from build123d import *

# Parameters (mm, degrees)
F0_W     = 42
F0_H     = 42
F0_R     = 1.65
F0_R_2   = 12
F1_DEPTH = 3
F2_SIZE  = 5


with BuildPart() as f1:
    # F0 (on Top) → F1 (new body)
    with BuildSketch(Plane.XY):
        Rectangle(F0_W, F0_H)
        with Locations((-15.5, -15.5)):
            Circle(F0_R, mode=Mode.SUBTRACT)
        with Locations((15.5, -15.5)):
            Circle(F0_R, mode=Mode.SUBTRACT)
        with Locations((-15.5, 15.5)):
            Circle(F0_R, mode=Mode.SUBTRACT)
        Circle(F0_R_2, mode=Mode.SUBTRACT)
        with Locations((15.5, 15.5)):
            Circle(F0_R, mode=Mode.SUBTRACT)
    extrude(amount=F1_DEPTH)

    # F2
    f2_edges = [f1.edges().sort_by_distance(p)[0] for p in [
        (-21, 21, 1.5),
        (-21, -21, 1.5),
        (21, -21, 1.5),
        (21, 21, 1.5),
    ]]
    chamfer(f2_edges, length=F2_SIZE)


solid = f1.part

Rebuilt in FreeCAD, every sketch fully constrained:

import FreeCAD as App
import Part
import Sketcher
from FreeCAD import Vector
Q = App.Units.Quantity


def edges_at(feature, points):
    """Names of the edges that pass closest to the given points."""
    edges = feature.Shape.Edges
    near = lambda p: min(range(len(edges)), key=lambda i: edges[i].distToShape(Part.Vertex(*p))[0])
    return sorted({f"Edge{near(p) + 1}" for p in points})

doc = App.newDocument("Part")
body = doc.addObject("PartDesign::Body", "Body")

sketch1 = doc.addObject("Sketcher::SketchObject", "Sketch")
body.addObject(sketch1)
sketch1.AttachmentSupport = (doc.XY_Plane, [""])
sketch1.MapMode = "FlatFace"
sketch1.addGeometry([
    Part.LineSegment(Vector(-21, 21, 0), Vector(-21, -21, 0)),
    Part.LineSegment(Vector(-21, -21, 0), Vector(21, -21, 0)),
    Part.LineSegment(Vector(21, -21, 0), Vector(21, 21, 0)),
    Part.LineSegment(Vector(21, 21, 0), Vector(-21, 21, 0)),
    Part.Circle(Vector(-15.5, -15.5, 0), Vector(0, 0, 1), 1.65),
    Part.Circle(Vector(15.5, -15.5, 0), Vector(0, 0, 1), 1.65),
    Part.Circle(Vector(-15.5, 15.5, 0), Vector(0, 0, 1), 1.65),
    Part.Circle(Vector(0, 0, 0), Vector(0, 0, 1), 12),
    Part.Circle(Vector(15.5, 15.5, 0), Vector(0, 0, 1), 1.65),
], False)
sketch1.addConstraint([
    Sketcher.Constraint("Coincident", 0, 2, 1, 1),
    Sketcher.Constraint("Coincident", 1, 2, 2, 1),
    Sketcher.Constraint("Coincident", 2, 2, 3, 1),
    Sketcher.Constraint("Coincident", 3, 2, 0, 1),
    Sketcher.Constraint("Vertical", 0),
    Sketcher.Constraint("Horizontal", 1),
    Sketcher.Constraint("Vertical", 2),
    Sketcher.Constraint("Horizontal", 3),
    Sketcher.Constraint("Coincident", 7, 3, -1, 1),
    Sketcher.Constraint("Equal", 4, 5),
    Sketcher.Constraint("Equal", 5, 6),
    Sketcher.Constraint("Equal", 6, 8),
    Sketcher.Constraint("Symmetric", 5, 3, 6, 3, -1, 1),
    Sketcher.Constraint("Symmetric", 4, 3, 8, 3, -1, 1),
    Sketcher.Constraint("Symmetric", 0, 2, 2, 2, -1, 1),
    Sketcher.Constraint("Symmetric", 4, 3, 5, 3, -2),
    Sketcher.Constraint("Equal", 3, 0),
    Sketcher.Constraint("Diameter", 7, Q("24 mm")),
    Sketcher.Constraint("Diameter", 4, Q("3.3 mm")),
    Sketcher.Constraint("DistanceX", 1, 1, 1, 2, Q("42 mm")),
    Sketcher.Constraint("DistanceX", 4, 3, 5, 3, Q("31 mm")),
    Sketcher.Constraint("DistanceY", 4, 3, 6, 3, Q("31 mm")),
])
pad1 = doc.addObject("PartDesign::Pad", "Pad")
body.addObject(pad1)
pad1.Profile = sketch1
pad1.Length = 3
doc.recompute()

chamfer = doc.addObject("PartDesign::Chamfer", "Chamfer")
body.addObject(chamfer)
chamfer.Base = (pad1, edges_at(pad1, [
    (-21, 21, 1.5),
    (-21, -21, 1.5),
    (21, -21, 1.5),
    (21, 21, 1.5),
]))
chamfer.Size = 5

doc.recompute()
